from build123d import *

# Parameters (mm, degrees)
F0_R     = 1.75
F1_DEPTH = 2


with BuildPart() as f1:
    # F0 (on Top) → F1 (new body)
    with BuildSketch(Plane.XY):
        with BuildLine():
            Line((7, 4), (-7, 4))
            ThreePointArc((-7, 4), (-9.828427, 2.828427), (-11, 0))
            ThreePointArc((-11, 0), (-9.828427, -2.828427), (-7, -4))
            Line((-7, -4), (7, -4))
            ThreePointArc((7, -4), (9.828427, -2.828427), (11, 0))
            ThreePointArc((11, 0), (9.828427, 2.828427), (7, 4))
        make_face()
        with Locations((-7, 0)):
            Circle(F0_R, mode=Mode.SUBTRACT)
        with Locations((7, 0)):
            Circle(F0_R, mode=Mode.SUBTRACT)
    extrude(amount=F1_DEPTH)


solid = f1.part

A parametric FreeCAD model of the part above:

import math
import FreeCAD as App
import Part
import Sketcher
from FreeCAD import Vector
Q = App.Units.Quantity

doc = App.newDocument("Part")
body = doc.addObject("PartDesign::Body", "Body")

# Sketch on XY plane
sketch1 = body.newObject("Sketcher::SketchObject", "Sketch")
sketch1.AttachmentSupport = (doc.getObject("XY_Plane"), [""])
sketch1.MapMode = "FlatFace"
sketch1.addGeometry([
    Part.LineSegment(Vector(7, 4, 0), Vector(-7, 4, 0)),  # 0
    Part.ArcOfCircle(Part.Circle(Vector(-7, 0, 0), Vector(0, 0, 1), 4), math.radians(90), math.radians(180)),  # 1
    Part.ArcOfCircle(Part.Circle(Vector(-7, 0, 0), Vector(0, 0, 1), 4), math.radians(-180), math.radians(-90)),  # 2
    Part.LineSegment(Vector(-7, -4, 0), Vector(7, -4, 0)),  # 3
    Part.ArcOfCircle(Part.Circle(Vector(7, 0, 0), Vector(0, 0, 1), 4), math.radians(-90), math.radians(0)),  # 4
    Part.ArcOfCircle(Part.Circle(Vector(7, 0, 0), Vector(0, 0, 1), 4), math.radians(0), math.radians(90)),  # 5
    Part.Circle(Vector(-7, 0, 0), Vector(0, 0, 1), 1.8),  # 6
    Part.Circle(Vector(7, 0, 0), Vector(0, 0, 1), 1.8),  # 7
], False)
sketch1.addConstraint([
    Sketcher.Constraint("Tangent", 0, 2, 1, 1),
    Sketcher.Constraint("Tangent", 1, 2, 2, 1),
    Sketcher.Constraint("Tangent", 2, 2, 3, 1),
    Sketcher.Constraint("Tangent", 3, 2, 4, 1),
    Sketcher.Constraint("Tangent", 4, 2, 5, 1),
    Sketcher.Constraint("Tangent", 5, 2, 0, 1),
    Sketcher.Constraint("Horizontal", 0),
    Sketcher.Constraint("Horizontal", 3),
    Sketcher.Constraint("Coincident", 6, 3, 1, 3),
    Sketcher.Constraint("Coincident", 7, 3, 4, 3),
    Sketcher.Constraint("Equal", 1, 2),
    Sketcher.Constraint("Equal", 2, 4),
    Sketcher.Constraint("Equal", 6, 7),
    Sketcher.Constraint("Symmetric", 1, 3, 4, 3, -1, 1),
    Sketcher.Constraint("PointOnObject", 1, 2, -1),
    Sketcher.Constraint("PointOnObject", 4, 2, -1),
    Sketcher.Constraint("Radius", 1, Q("4 mm")),
    Sketcher.Constraint("Diameter", 6, Q("3.5 mm")),
    Sketcher.Constraint("DistanceX", 0, 2, 0, 1, Q("14 mm")),
])
pad1 = body.newObject("PartDesign::Pad", "Pad")
pad1.Profile = sketch1
pad1.Length = 2

doc.recompute()
